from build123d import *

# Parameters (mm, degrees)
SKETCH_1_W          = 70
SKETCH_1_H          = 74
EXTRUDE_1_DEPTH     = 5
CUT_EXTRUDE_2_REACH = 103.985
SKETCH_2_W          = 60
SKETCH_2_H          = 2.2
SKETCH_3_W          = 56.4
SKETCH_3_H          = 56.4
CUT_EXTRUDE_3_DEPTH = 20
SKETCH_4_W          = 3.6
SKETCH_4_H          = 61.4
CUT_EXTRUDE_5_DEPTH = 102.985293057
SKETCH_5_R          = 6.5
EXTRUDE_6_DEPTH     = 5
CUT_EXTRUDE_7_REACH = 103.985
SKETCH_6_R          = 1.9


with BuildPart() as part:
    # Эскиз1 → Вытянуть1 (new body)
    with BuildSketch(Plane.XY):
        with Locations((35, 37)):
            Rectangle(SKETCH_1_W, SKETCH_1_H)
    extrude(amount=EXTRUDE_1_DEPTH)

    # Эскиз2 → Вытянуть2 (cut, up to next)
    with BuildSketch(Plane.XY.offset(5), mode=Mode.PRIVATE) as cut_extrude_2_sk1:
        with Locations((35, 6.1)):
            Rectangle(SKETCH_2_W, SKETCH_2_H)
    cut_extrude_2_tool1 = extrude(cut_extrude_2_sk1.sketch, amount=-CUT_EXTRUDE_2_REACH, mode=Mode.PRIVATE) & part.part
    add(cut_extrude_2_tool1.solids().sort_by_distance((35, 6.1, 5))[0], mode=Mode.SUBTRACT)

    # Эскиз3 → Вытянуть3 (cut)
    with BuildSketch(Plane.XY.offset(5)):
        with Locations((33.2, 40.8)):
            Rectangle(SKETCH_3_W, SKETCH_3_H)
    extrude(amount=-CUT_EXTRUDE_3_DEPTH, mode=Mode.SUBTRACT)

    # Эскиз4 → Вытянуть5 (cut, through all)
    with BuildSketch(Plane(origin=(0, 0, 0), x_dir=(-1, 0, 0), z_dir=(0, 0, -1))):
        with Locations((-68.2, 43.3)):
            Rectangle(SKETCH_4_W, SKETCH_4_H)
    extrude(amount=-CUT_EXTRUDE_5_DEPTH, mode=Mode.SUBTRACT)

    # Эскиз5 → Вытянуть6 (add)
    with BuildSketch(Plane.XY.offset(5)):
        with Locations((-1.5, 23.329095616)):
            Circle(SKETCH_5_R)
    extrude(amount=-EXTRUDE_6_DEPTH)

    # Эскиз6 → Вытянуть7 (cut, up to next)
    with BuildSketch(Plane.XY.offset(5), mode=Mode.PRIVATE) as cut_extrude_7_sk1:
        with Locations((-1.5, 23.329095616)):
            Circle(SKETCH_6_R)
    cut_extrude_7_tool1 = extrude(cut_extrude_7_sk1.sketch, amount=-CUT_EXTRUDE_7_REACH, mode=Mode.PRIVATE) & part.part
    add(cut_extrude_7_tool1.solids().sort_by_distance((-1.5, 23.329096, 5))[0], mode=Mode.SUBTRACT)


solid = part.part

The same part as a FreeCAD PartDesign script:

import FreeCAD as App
import Part
import Sketcher

doc = App.newDocument("Part")
params = doc.addObject("Spreadsheet::Sheet", "Params")
for row, (alias, value) in enumerate([
    ("sketch1_width", "70 mm"),
    ("sketch1_height", "74 mm"),
    ("pad1_length", "5 mm"),
    ("sketch2_width", "60 mm"),
    ("sketch2_height", "2.2 mm"),
    ("sketch3_width", "56.4 mm"),
    ("pocket2_length", "20 mm"),
    ("sketch4_width", "3.6 mm"),
    ("sketch4_height", "61.4 mm"),
    ("sketch5_diameter", "13 mm"),
    ("pad2_length", "5 mm"),
    ("sketch6_diameter", "3.8 mm"),
], start=1):
    params.set(f"A{row}", alias)
    params.set(f"B{row}", "=" + value)
    params.setAlias(f"B{row}", alias)

body = doc.addObject("PartDesign::Body", "Body")

# Sketch on XY plane
sketch1 = body.newObject("Sketcher::SketchObject", "Sketch")
sketch1.AttachmentSupport = (doc.getObject("XY_Plane"), [""])
sketch1.MapMode = "FlatFace"
sketch1.addGeometry(Part.LineSegment(App.Vector(0, 74, 0), App.Vector(0, 0, 0)), False)
sketch1.addGeometry(Part.LineSegment(App.Vector(0, 0, 0), App.Vector(70, 0, 0)), False)
sketch1.addGeometry(Part.LineSegment(App.Vector(70, 0, 0), App.Vector(70, 74, 0)), False)
sketch1.addGeometry(Part.LineSegment(App.Vector(70, 74, 0), App.Vector(0, 74, 0)), False)
sketch1.addConstraint(Sketcher.Constraint("Coincident", 0, 2, 1, 1))
sketch1.addConstraint(Sketcher.Constraint("Coincident", 1, 2, 2, 1))
sketch1.addConstraint(Sketcher.Constraint("Coincident", 2, 2, 3, 1))
sketch1.addConstraint(Sketcher.Constraint("Coincident", 3, 2, 0, 1))
sketch1.addConstraint(Sketcher.Constraint("Vertical", 0))
sketch1.addConstraint(Sketcher.Constraint("Horizontal", 1))
sketch1.addConstraint(Sketcher.Constraint("Vertical", 2))
sketch1.addConstraint(Sketcher.Constraint("Horizontal", 3))
sketch1.addConstraint(Sketcher.Constraint("Coincident", 0, 2, -1, 1))
sketch1.addConstraint(Sketcher.Constraint("DistanceX", 1, 1, 1, 2, 70.0))
sketch1.addConstraint(Sketcher.Constraint("DistanceY", 0, 2, 0, 1, 74.0))
sketch1.setExpression("Constraints[9]", "Params.sketch1_width")
sketch1.setExpression("Constraints[10]", "Params.sketch1_height")
pad1 = body.newObject("PartDesign::Pad", "Pad")
pad1.Profile = sketch1
pad1.setExpression("Length", "Params.pad1_length")

# Sketch on XY plane
sketch2 = body.newObject("Sketcher::SketchObject", "Sketch001")
sketch2.AttachmentSupport = (doc.getObject("XY_Plane"), [""])
sketch2.MapMode = "FlatFace"
sketch2.AttachmentOffset = App.Placement(App.Vector(0, 0, 5), App.Rotation())
sketch2.addGeometry(Part.LineSegment(App.Vector(5, 7.2, 0), App.Vector(5, 5, 0)), False)
sketch2.addGeometry(Part.LineSegment(App.Vector(5, 5, 0), App.Vector(65, 5, 0)), False)
sketch2.addGeometry(Part.LineSegment(App.Vector(65, 5, 0), App.Vector(65, 7.2, 0)), False)
sketch2.addGeometry(Part.LineSegment(App.Vector(65, 7.2, 0), App.Vector(5, 7.2, 0)), False)
sketch2.addConstraint(Sketcher.Constraint("Coincident", 0, 2, 1, 1))
sketch2.addConstraint(Sketcher.Constraint("Coincident", 1, 2, 2, 1))
sketch2.addConstraint(Sketcher.Constraint("Coincident", 2, 2, 3, 1))
sketch2.addConstraint(Sketcher.Constraint("Coincident", 3, 2, 0, 1))
sketch2.addConstraint(Sketcher.Constraint("Vertical", 0))
sketch2.addConstraint(Sketcher.Constraint("Horizontal", 1))
sketch2.addConstraint(Sketcher.Constraint("Vertical", 2))
sketch2.addConstraint(Sketcher.Constraint("Horizontal", 3))
sketch2.addConstraint(Sketcher.Constraint("DistanceX", 1, 1, 1, 2, 60.0))
sketch2.addConstraint(Sketcher.Constraint("DistanceY", 0, 2, 0, 1, 2.2))
sketch2.addConstraint(Sketcher.Constraint("DistanceX", -1, 1, 0, 2, 5.0))
sketch2.addConstraint(Sketcher.Constraint("DistanceY", -1, 1, 0, 2, 5.0))
sketch2.setExpression("Constraints[8]", "Params.sketch2_width")
sketch2.setExpression("Constraints[9]", "Params.sketch2_height")
pocket1 = body.newObject("PartDesign::Pocket", "Pocket")
pocket1.Profile = sketch2
pocket1.Type = "UpToFirst"

# Sketch on XY plane
sketch3 = body.newObject("Sketcher::SketchObject", "Sketch002")
sketch3.AttachmentSupport = (doc.getObject("XY_Plane"), [""])
sketch3.MapMode = "FlatFace"
sketch3.AttachmentOffset = App.Placement(App.Vector(0, 0, 5), App.Rotation())
sketch3.addGeometry(Part.LineSegment(App.Vector(5, 69, 0), App.Vector(5, 13, 0)), False)
sketch3.addGeometry(Part.LineSegment(App.Vector(5, 13, 0), App.Vector(61, 13, 0)), False)
sketch3.addGeometry(Part.LineSegment(App.Vector(61, 13, 0), App.Vector(61, 69, 0)), False)
sketch3.addGeometry(Part.LineSegment(App.Vector(61, 69, 0), App.Vector(5, 69, 0)), False)
sketch3.addConstraint(Sketcher.Constraint("Coincident", 0, 2, 1, 1))
sketch3.addConstraint(Sketcher.Constraint("Coincident", 1, 2, 2, 1))
sketch3.addConstraint(Sketcher.Constraint("Coincident", 2, 2, 3, 1))
sketch3.addConstraint(Sketcher.Constraint("Coincident", 3, 2, 0, 1))
sketch3.addConstraint(Sketcher.Constraint("Vertical", 0))
sketch3.addConstraint(Sketcher.Constraint("Horizontal", 1))
sketch3.addConstraint(Sketcher.Constraint("Vertical", 2))
sketch3.addConstraint(Sketcher.Constraint("Horizontal", 3))
sketch3.addConstraint(Sketcher.Constraint("Equal", 3, 0))
sketch3.addConstraint(Sketcher.Constraint("DistanceX", 1, 1, 1, 2, 56.4))
sketch3.addConstraint(Sketcher.Constraint("DistanceX", -1, 1, 0, 2, 5.0))
sketch3.addConstraint(Sketcher.Constraint("DistanceY", -1, 1, 2, 2, 69.0))
sketch3.setExpression("Constraints[9]", "Params.sketch3_width")
pocket2 = body.newObject("PartDesign::Pocket", "Pocket001")
pocket2.Profile = sketch3
pocket2.setExpression("Length", "Params.pocket2_length")

# Sketch on XY plane
sketch4 = body.newObject("Sketcher::SketchObject", "Sketch003")
sketch4.AttachmentSupport = (doc.getObject("XY_Plane"), [""])
sketch4.MapMode = "FlatFace"
sketch4.addGeometry(Part.LineSegment(App.Vector(70, 74, 0), App.Vector(70, 12.6, 0)), False)
sketch4.addGeometry(Part.LineSegment(App.Vector(70, 12.6, 0), App.Vector(66.4, 12.6, 0)), False)
sketch4.addGeometry(Part.LineSegment(App.Vector(66.4, 12.6, 0), App.Vector(66.4, 74, 0)), False)
sketch4.addGeometry(Part.LineSegment(App.Vector(66.4, 74, 0), App.Vector(70, 74, 0)), False)
sketch4.addConstraint(Sketcher.Constraint("Coincident", 0, 2, 1, 1))
sketch4.addConstraint(Sketcher.Constraint("Coincident", 1, 2, 2, 1))
sketch4.addConstraint(Sketcher.Constraint("Coincident", 2, 2, 3, 1))
sketch4.addConstraint(Sketcher.Constraint("Coincident", 3, 2, 0, 1))
sketch4.addConstraint(Sketcher.Constraint("Vertical", 0))
sketch4.addConstraint(Sketcher.Constraint("Horizontal", 1))
sketch4.addConstraint(Sketcher.Constraint("Vertical", 2))
sketch4.addConstraint(Sketcher.Constraint("Horizontal", 3))
sketch4.addConstraint(Sketcher.Constraint("DistanceX", 1, 2, 1, 1, 3.6))
sketch4.addConstraint(Sketcher.Constraint("DistanceY", 0, 2, 0, 1, 61.4))
sketch4.addConstraint(Sketcher.Constraint("DistanceX", -1, 1, 0, 2, 70.0))
sketch4.addConstraint(Sketcher.Constraint("DistanceY", -1, 1, 2, 2, 74.0))
sketch4.setExpression("Constraints[8]", "Params.sketch4_width")
sketch4.setExpression("Constraints[9]", "Params.sketch4_height")
pocket3 = body.newObject("PartDesign::Pocket", "Pocket002")
pocket3.Profile = sketch4
pocket3.Type = "ThroughAll"
pocket3.Reversed = True

# Sketch on XY plane
sketch5 = body.newObject("Sketcher::SketchObject", "Sketch004")
sketch5.AttachmentSupport = (doc.getObject("XY_Plane"), [""])
sketch5.MapMode = "FlatFace"
sketch5.AttachmentOffset = App.Placement(App.Vector(0, 0, 5), App.Rotation())
sketch5.addGeometry(Part.Circle(App.Vector(-2, 23, 0), App.Vector(0, 0, 1), 6), False)
sketch5.addConstraint(Sketcher.Constraint("Diameter", 0, 13.0))
sketch5.addConstraint(Sketcher.Constraint("DistanceX", 0, 3, -1, 1, 1.5))
sketch5.addConstraint(Sketcher.Constraint("DistanceY", -1, 1, 0, 3, 23.329096))
sketch5.setExpression("Constraints[0]", "Params.sketch5_diameter")
pad2 = body.newObject("PartDesign::Pad", "Pad001")
pad2.Profile = sketch5
pad2.setExpression("Length", "Params.pad2_length")
pad2.Reversed = True

# Sketch on XY plane
sketch6 = body.newObject("Sketcher::SketchObject", "Sketch005")
sketch6.AttachmentSupport = (doc.getObject("XY_Plane"), [""])
sketch6.MapMode = "FlatFace"
sketch6.AttachmentOffset = App.Placement(App.Vector(0, 0, 5), App.Rotation())
sketch6.addGeometry(Part.Circle(App.Vector(-1.5, 23.3, 0), App.Vector(0, 0, 1), 1.9), False)
sketch6.addConstraint(Sketcher.Constraint("Diameter", 0, 3.8))
sketch6.addConstraint(Sketcher.Constraint("DistanceX", 0, 3, -1, 1, 1.5))
sketch6.addConstraint(Sketcher.Constraint("DistanceY", -1, 1, 0, 3, 23.329096))
sketch6.setExpression("Constraints[0]", "Params.sketch6_diameter")
pocket4 = body.newObject("PartDesign::Pocket", "Pocket003")
pocket4.Profile = sketch6
pocket4.Type = "UpToFirst"

doc.recompute()
